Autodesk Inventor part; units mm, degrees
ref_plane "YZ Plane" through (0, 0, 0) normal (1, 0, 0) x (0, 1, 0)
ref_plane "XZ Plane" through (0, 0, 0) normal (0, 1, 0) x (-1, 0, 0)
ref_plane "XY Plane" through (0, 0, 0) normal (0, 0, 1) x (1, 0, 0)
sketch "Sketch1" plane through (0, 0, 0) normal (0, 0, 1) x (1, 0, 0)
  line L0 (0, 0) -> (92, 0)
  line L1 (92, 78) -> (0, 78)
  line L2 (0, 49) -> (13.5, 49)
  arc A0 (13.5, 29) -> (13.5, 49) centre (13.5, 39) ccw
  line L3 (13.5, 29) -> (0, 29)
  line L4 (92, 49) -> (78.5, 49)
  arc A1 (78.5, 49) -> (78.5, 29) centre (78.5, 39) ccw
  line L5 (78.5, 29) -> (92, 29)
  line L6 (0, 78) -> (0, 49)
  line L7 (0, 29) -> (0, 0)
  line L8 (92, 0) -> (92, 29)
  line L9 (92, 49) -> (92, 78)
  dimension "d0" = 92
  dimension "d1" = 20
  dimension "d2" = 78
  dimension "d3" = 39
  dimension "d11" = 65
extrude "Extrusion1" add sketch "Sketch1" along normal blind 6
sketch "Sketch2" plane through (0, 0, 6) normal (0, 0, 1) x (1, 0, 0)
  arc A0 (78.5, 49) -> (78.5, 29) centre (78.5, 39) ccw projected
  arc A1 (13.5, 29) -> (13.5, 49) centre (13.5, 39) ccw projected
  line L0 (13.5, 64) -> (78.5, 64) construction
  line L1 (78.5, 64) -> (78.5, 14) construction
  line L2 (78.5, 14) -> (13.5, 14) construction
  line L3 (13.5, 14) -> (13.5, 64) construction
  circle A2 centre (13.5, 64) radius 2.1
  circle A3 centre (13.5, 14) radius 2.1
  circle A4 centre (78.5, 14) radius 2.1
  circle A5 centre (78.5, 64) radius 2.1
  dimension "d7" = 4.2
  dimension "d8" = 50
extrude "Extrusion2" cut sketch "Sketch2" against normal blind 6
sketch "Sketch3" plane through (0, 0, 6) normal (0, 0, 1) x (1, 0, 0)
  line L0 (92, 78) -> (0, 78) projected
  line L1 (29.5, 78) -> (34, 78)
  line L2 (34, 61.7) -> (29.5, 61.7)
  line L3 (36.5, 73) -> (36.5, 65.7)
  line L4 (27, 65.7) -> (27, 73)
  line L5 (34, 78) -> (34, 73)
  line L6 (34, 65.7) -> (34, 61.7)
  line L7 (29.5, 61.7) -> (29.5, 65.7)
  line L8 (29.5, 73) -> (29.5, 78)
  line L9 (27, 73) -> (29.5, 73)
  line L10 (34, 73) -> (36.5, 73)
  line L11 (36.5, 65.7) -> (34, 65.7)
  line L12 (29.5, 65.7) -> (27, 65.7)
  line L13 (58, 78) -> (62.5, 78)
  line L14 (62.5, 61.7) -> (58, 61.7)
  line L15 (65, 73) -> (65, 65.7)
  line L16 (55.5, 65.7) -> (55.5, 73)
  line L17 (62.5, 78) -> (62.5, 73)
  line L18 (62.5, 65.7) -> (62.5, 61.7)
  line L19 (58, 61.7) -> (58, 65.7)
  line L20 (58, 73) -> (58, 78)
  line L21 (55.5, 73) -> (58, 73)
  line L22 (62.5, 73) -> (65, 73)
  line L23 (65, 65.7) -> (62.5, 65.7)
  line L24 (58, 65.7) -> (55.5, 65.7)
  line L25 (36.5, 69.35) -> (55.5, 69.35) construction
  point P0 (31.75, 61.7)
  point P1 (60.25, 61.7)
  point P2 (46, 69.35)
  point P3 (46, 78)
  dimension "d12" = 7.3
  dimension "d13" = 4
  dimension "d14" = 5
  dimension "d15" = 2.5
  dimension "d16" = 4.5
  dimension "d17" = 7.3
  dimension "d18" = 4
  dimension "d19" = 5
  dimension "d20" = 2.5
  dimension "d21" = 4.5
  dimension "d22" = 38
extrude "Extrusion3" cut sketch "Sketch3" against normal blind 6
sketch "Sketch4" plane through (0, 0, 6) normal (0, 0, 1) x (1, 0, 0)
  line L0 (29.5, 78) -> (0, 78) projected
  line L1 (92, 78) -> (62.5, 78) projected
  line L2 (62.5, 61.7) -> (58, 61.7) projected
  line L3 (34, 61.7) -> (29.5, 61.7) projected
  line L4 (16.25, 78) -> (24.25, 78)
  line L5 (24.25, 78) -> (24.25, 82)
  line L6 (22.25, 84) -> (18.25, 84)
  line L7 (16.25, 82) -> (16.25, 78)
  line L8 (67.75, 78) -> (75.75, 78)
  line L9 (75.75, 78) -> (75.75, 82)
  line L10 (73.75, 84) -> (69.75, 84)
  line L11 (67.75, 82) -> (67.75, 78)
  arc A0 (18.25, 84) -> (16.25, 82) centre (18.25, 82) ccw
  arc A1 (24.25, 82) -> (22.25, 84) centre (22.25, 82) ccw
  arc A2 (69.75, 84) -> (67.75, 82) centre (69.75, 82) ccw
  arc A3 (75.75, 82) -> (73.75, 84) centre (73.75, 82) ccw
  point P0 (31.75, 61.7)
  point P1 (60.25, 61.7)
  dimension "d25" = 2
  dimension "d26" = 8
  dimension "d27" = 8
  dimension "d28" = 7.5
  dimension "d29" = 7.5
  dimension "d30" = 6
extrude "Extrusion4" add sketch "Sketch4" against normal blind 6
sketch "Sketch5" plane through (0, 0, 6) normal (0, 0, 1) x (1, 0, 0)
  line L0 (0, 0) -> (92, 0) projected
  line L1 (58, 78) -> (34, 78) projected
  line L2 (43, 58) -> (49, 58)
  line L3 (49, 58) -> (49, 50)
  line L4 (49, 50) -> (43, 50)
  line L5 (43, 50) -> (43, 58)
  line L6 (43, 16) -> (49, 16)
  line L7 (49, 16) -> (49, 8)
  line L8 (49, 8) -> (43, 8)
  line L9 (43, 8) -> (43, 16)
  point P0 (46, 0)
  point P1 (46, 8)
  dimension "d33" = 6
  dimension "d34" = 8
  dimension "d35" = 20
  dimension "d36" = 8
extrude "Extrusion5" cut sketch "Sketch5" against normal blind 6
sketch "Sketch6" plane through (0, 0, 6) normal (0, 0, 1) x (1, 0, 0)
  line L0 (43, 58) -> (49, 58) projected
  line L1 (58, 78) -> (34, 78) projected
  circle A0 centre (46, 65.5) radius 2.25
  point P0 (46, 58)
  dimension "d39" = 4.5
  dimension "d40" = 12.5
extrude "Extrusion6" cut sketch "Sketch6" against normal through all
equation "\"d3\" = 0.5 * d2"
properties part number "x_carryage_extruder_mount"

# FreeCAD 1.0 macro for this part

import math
import FreeCAD as App
import Part
import Sketcher

V = App.Vector
Q = App.Units.Quantity


def add_polygon(sketch, points):
    """Adds a closed chain of lines whose ends are joined by coincident constraints."""
    first, n = sketch.GeometryCount, len(points)
    for a, b in zip(points, points[1:] + points[:1]):
        sketch.addGeometry(Part.LineSegment(App.Vector(*a, 0), App.Vector(*b, 0)), False)
    for i in range(n):
        sketch.addConstraint(Sketcher.Constraint("Coincident", first + i, 2, first + (i + 1) % n, 1))

doc = App.newDocument("Part")
body = doc.addObject("PartDesign::Body", "Body")

# Sketch on XY plane
sketch1 = body.newObject("Sketcher::SketchObject", "Sketch")
sketch1.AttachmentSupport = (doc.getObject("XY_Plane"), [""])
sketch1.MapMode = "FlatFace"
sketch1.addGeometry([
    Part.LineSegment(V(0, 29, 0), V(0, 0, 0)),  # 0
    Part.LineSegment(V(0, 0, 0), V(92, 0, 0)),  # 1
    Part.LineSegment(V(92, 0, 0), V(92, 29, 0)),  # 2
    Part.LineSegment(V(92, 29, 0), V(78, 29, 0)),  # 3
    Part.ArcOfCircle(Part.Circle(V(78, 39, 0), V(0, 0, 1), 10), math.radians(90), math.radians(270)),  # 4
    Part.LineSegment(V(78, 49, 0), V(92, 49, 0)),  # 5
    Part.LineSegment(V(92, 49, 0), V(92, 78, 0)),  # 6
    Part.LineSegment(V(92, 78, 0), V(0, 78, 0)),  # 7
    Part.LineSegment(V(0, 78, 0), V(0, 49, 0)),  # 8
    Part.LineSegment(V(0, 49, 0), V(14, 49, 0)),  # 9
    Part.ArcOfCircle(Part.Circle(V(14, 39, 0), V(0, 0, 1), 10), math.radians(-90), math.radians(90)),  # 10
    Part.LineSegment(V(14, 29, 0), V(0, 29, 0)),  # 11
], False)
sketch1.addConstraint([
    Sketcher.Constraint("Coincident", 0, 2, 1, 1),
    Sketcher.Constraint("Coincident", 1, 2, 2, 1),
    Sketcher.Constraint("Coincident", 2, 2, 3, 1),
    Sketcher.Constraint("Tangent", 3, 2, 4, 2),
    Sketcher.Constraint("Tangent", 4, 1, 5, 1),
    Sketcher.Constraint("Coincident", 5, 2, 6, 1),
    Sketcher.Constraint("Coincident", 6, 2, 7, 1),
    Sketcher.Constraint("Coincident", 7, 2, 8, 1),
    Sketcher.Constraint("Coincident", 8, 2, 9, 1),
    Sketcher.Constraint("Tangent", 9, 2, 10, 2),
    Sketcher.Constraint("Tangent", 10, 1, 11, 1),
    Sketcher.Constraint("Coincident", 11, 2, 0, 1),
    Sketcher.Constraint("Vertical", 0),
    Sketcher.Constraint("Horizontal", 1),
    Sketcher.Constraint("Vertical", 2),
    Sketcher.Constraint("Horizontal", 3),
    Sketcher.Constraint("Horizontal", 5),
    Sketcher.Constraint("Vertical", 6),
    Sketcher.Constraint("Horizontal", 7),
    Sketcher.Constraint("Vertical", 8),
    Sketcher.Constraint("Horizontal", 9),
    Sketcher.Constraint("Horizontal", 11),
    Sketcher.Constraint("Coincident", 0, 2, -1, 1),
    Sketcher.Constraint("Equal", 4, 10),
    Sketcher.Constraint("PointOnObject", 7, 2, -2),
    Sketcher.Constraint("Horizontal", 4, 3, 10, 3),
    Sketcher.Constraint("Vertical", 2, 2, 5, 2),
    Sketcher.Constraint("Equal", 5, 9),
    Sketcher.Constraint("Equal", 2, 6),
    Sketcher.Constraint("Radius", 4, Q("10 mm")),
    Sketcher.Constraint("DistanceX", 1, 1, 1, 2, Q("92 mm")),
    Sketcher.Constraint("DistanceY", -1, 1, 4, 3, Q("39 mm")),
    Sketcher.Constraint("DistanceX", 10, 3, 4, 3, Q("65 mm")),
])
pad1 = body.newObject("PartDesign::Pad", "Pad")
pad1.Profile = sketch1
pad1.Length = 6

# Sketch on XY plane
sketch2 = body.newObject("Sketcher::SketchObject", "Sketch001")
sketch2.AttachmentSupport = (doc.getObject("XY_Plane"), [""])
sketch2.MapMode = "FlatFace"
sketch2.AttachmentOffset = App.Placement(V(0, 0, 6), App.Rotation())
sketch2.addGeometry([
    Part.Circle(V(13.5, 64, 0), V(0, 0, 1), 2.1),
    Part.Circle(V(13.5, 14, 0), V(0, 0, 1), 2.1),
    Part.Circle(V(78.5, 14, 0), V(0, 0, 1), 2.1),
    Part.Circle(V(78.5, 64, 0), V(0, 0, 1), 2.1),
], False)
sketch2.addConstraint([
    Sketcher.Constraint("Equal", 0, 1),
    Sketcher.Constraint("Equal", 1, 2),
    Sketcher.Constraint("Equal", 2, 3),
    Sketcher.Constraint("Horizontal", 1, 3, 2, 3),
    Sketcher.Constraint("Horizontal", 0, 3, 3, 3),
    Sketcher.Constraint("Vertical", 0, 3, 1, 3),
    Sketcher.Constraint("Vertical", 2, 3, 3, 3),
    Sketcher.Constraint("Diameter", 0, Q("4.2 mm")),
    Sketcher.Constraint("DistanceY", 1, 3, 0, 3, Q("50 mm")),
    Sketcher.Constraint("DistanceY", -1, 1, 0, 3, Q("64 mm")),
    Sketcher.Constraint("DistanceX", 1, 3, 2, 3, Q("65 mm")),
    Sketcher.Constraint("DistanceX", -1, 1, 0, 3, Q("13.5 mm")),
])
pocket1 = body.newObject("PartDesign::Pocket", "Pocket")
pocket1.Profile = sketch2
pocket1.Length = 6

# Sketch on XY plane
sketch3 = body.newObject("Sketcher::SketchObject", "Sketch002")
sketch3.AttachmentSupport = (doc.getObject("XY_Plane"), [""])
sketch3.MapMode = "FlatFace"
sketch3.AttachmentOffset = App.Placement(V(0, 0, 6), App.Rotation())
add_polygon(sketch3, [(62.5, 73), (62.5, 78), (58, 78), (58, 73), (55.5, 73), (55.5, 65.7), (58, 65.7), (58, 61.7), (62.5, 61.7), (62.5, 65.7), (65, 65.7), (65, 73)])  # lines 0-11
add_polygon(sketch3, [(34, 73), (34, 78), (29.5, 78), (29.5, 73), (27, 73), (27, 65.7), (29.5, 65.7), (29.5, 61.7), (34, 61.7), (34, 65.7), (36.5, 65.7), (36.5, 73)])  # lines 12-23
sketch3.addConstraint([
    Sketcher.Constraint("Vertical", 0),
    Sketcher.Constraint("Horizontal", 1),
    Sketcher.Constraint("Vertical", 2),
    Sketcher.Constraint("Horizontal", 3),
    Sketcher.Constraint("Vertical", 4),
    Sketcher.Constraint("Horizontal", 5),
    Sketcher.Constraint("Vertical", 6),
    Sketcher.Constraint("Horizontal", 7),
    Sketcher.Constraint("Vertical", 8),
    Sketcher.Constraint("Horizontal", 9),
    Sketcher.Constraint("Vertical", 10),
    Sketcher.Constraint("Horizontal", 11),
    Sketcher.Constraint("Vertical", 12),
    Sketcher.Constraint("Horizontal", 13),
    Sketcher.Constraint("Vertical", 14),
    Sketcher.Constraint("Horizontal", 15),
    Sketcher.Constraint("Vertical", 16),
    Sketcher.Constraint("Horizontal", 17),
    Sketcher.Constraint("Vertical", 18),
    Sketcher.Constraint("Horizontal", 19),
    Sketcher.Constraint("Vertical", 20),
    Sketcher.Constraint("Horizontal", 21),
    Sketcher.Constraint("Vertical", 22),
    Sketcher.Constraint("Horizontal", 23),
    Sketcher.Constraint("Horizontal", 5, 2, 8, 2),
    Sketcher.Constraint("Horizontal", 3, 2, 10, 2),
    Sketcher.Constraint("Horizontal", 1, 2, 12, 2),
    Sketcher.Constraint("Horizontal", 11, 2, 14, 2),
    Sketcher.Constraint("Horizontal", 9, 2, 16, 2),
    Sketcher.Constraint("Horizontal", 7, 2, 18, 2),
    Sketcher.Constraint("Horizontal", 17, 2, 20, 2),
    Sketcher.Constraint("Horizontal", 15, 2, 22, 2),
    Sketcher.Constraint("Vertical", 2, 2, 5, 2),
    Sketcher.Constraint("Vertical", 0, 2, 7, 2),
    Sketcher.Constraint("Vertical", 14, 2, 17, 2),
    Sketcher.Constraint("Vertical", 12, 2, 19, 2),
    Sketcher.Constraint("Equal", 5, 9),
    Sketcher.Constraint("Equal", 7, 13),
    Sketcher.Constraint("Equal", 11, 15),
    Sketcher.Constraint("Equal", 17, 21),
    Sketcher.Constraint("DistanceY", 0, 1, 0, 2, Q("5 mm")),
    Sketcher.Constraint("DistanceY", 6, 2, 6, 1, Q("4 mm")),
    Sketcher.Constraint("DistanceX", 1, 2, 1, 1, Q("4.5 mm")),
    Sketcher.Constraint("DistanceX", 3, 2, 3, 1, Q("2.5 mm")),
    Sketcher.Constraint("DistanceY", 4, 2, 4, 1, Q("7.3 mm")),
    Sketcher.Constraint("DistanceY", -1, 1, 0, 2, Q("78 mm")),
    Sketcher.Constraint("DistanceX", -1, 1, 1, 2, Q("58 mm")),
    Sketcher.Constraint("DistanceX", -1, 1, 12, 2, Q("34 mm")),
])
pocket2 = body.newObject("PartDesign::Pocket", "Pocket001")
pocket2.Profile = sketch3
pocket2.Length = 6

# Sketch on XY plane
sketch4 = body.newObject("Sketcher::SketchObject", "Sketch003")
sketch4.AttachmentSupport = (doc.getObject("XY_Plane"), [""])
sketch4.MapMode = "FlatFace"
sketch4.AttachmentOffset = App.Placement(V(0, 0, 6), App.Rotation())
sketch4.addGeometry([
    Part.LineSegment(V(16.2, 78, 0), V(24.2, 78, 0)),  # 0
    Part.LineSegment(V(24.2, 78, 0), V(24.2, 82, 0)),  # 1
    Part.ArcOfCircle(Part.Circle(V(22.2, 82, 0), V(0, 0, 1), 2), math.radians(0), math.radians(90)),  # 2
    Part.LineSegment(V(22.2, 84, 0), V(18.2, 84, 0)),  # 3
    Part.ArcOfCircle(Part.Circle(V(18.2, 82, 0), V(0, 0, 1), 2), math.radians(90), math.radians(180)),  # 4
    Part.LineSegment(V(16.2, 82, 0), V(16.2, 78, 0)),  # 5
    Part.LineSegment(V(67.8, 78, 0), V(75.8, 78, 0)),  # 6
    Part.LineSegment(V(75.8, 78, 0), V(75.8, 82, 0)),  # 7
    Part.ArcOfCircle(Part.Circle(V(73.8, 82, 0), V(0, 0, 1), 2), math.radians(0), math.radians(90)),  # 8
    Part.LineSegment(V(73.8, 84, 0), V(69.8, 84, 0)),  # 9
    Part.ArcOfCircle(Part.Circle(V(69.8, 82, 0), V(0, 0, 1), 2), math.radians(90), math.radians(180)),  # 10
    Part.LineSegment(V(67.8, 82, 0), V(67.8, 78, 0)),  # 11
], False)
sketch4.addConstraint([
    Sketcher.Constraint("Coincident", 0, 2, 1, 1),
    Sketcher.Constraint("Tangent", 1, 2, 2, 1),
    Sketcher.Constraint("Tangent", 2, 2, 3, 1),
    Sketcher.Constraint("Tangent", 3, 2, 4, 1),
    Sketcher.Constraint("Tangent", 4, 2, 5, 1),
    Sketcher.Constraint("Coincident", 5, 2, 0, 1),
    Sketcher.Constraint("Coincident", 6, 2, 7, 1),
    Sketcher.Constraint("Tangent", 7, 2, 8, 1),
    Sketcher.Constraint("Tangent", 8, 2, 9, 1),
    Sketcher.Constraint("Tangent", 9, 2, 10, 1),
    Sketcher.Constraint("Tangent", 10, 2, 11, 1),
    Sketcher.Constraint("Coincident", 11, 2, 6, 1),
    Sketcher.Constraint("Horizontal", 0),
    Sketcher.Constraint("Vertical", 1),
    Sketcher.Constraint("Horizontal", 3),
    Sketcher.Constraint("Vertical", 5),
    Sketcher.Constraint("Horizontal", 6),
    Sketcher.Constraint("Vertical", 7),
    Sketcher.Constraint("Horizontal", 9),
    Sketcher.Constraint("Vertical", 11),
    Sketcher.Constraint("Equal", 2, 4),
    Sketcher.Constraint("Equal", 4, 8),
    Sketcher.Constraint("Equal", 8, 10),
    Sketcher.Constraint("Horizontal", 4, 3, 8, 3),
    Sketcher.Constraint("Horizontal", 5, 2, 6, 2),
    Sketcher.Constraint("Equal", 0, 6),
    Sketcher.Constraint("Equal", 9, 1),
    Sketcher.Constraint("Radius", 2, Q("2 mm")),
    Sketcher.Constraint("DistanceX", 0, 1, 0, 2, Q("8 mm")),
    Sketcher.Constraint("DistanceY", -1, 1, 2, 3, Q("82 mm")),
    Sketcher.Constraint("DistanceX", 2, 3, 8, 3, Q("51.5 mm")),
    Sketcher.Constraint("DistanceX", -1, 1, 2, 3, Q("22.25 mm")),
])
pad2 = body.newObject("PartDesign::Pad", "Pad001")
pad2.Profile = sketch4
pad2.Length = 6
pad2.Reversed = True

# Sketch on XY plane
sketch5 = body.newObject("Sketcher::SketchObject", "Sketch004")
sketch5.AttachmentSupport = (doc.getObject("XY_Plane"), [""])
sketch5.MapMode = "FlatFace"
sketch5.AttachmentOffset = App.Placement(V(0, 0, 6), App.Rotation())
add_polygon(sketch5, [(49, 58), (43, 58), (43, 50), (49, 50)])  # lines 0-3
add_polygon(sketch5, [(49, 16), (43, 16), (43, 8), (49, 8)])  # lines 4-7
sketch5.addConstraint([
    Sketcher.Constraint("Horizontal", 0),
    Sketcher.Constraint("Vertical", 1),
    Sketcher.Constraint("Horizontal", 2),
    Sketcher.Constraint("Vertical", 3),
    Sketcher.Constraint("Horizontal", 4),
    Sketcher.Constraint("Vertical", 5),
    Sketcher.Constraint("Horizontal", 6),
    Sketcher.Constraint("Vertical", 7),
    Sketcher.Constraint("Vertical", 1, 2, 4, 2),
    Sketcher.Constraint("Vertical", 3, 2, 6, 2),
    Sketcher.Constraint("Equal", 3, 5),
    Sketcher.Constraint("DistanceX", 0, 2, 0, 1, Q("6 mm")),
    Sketcher.Constraint("DistanceY", 1, 2, 1, 1, Q("8 mm")),
    Sketcher.Constraint("DistanceY", -1, 1, 5, 2, Q("8 mm")),
    Sketcher.Constraint("DistanceX", -1, 1, 0, 2, Q("43 mm")),
    Sketcher.Constraint("DistanceY", -1, 1, 0, 2, Q("58 mm")),
])
pocket3 = body.newObject("PartDesign::Pocket", "Pocket002")
pocket3.Profile = sketch5
pocket3.Length = 6

# Sketch on XY plane
sketch6 = body.newObject("Sketcher::SketchObject", "Sketch005")
sketch6.AttachmentSupport = (doc.getObject("XY_Plane"), [""])
sketch6.MapMode = "FlatFace"
sketch6.AttachmentOffset = App.Placement(V(0, 0, 6), App.Rotation())
sketch6.addGeometry(Part.Circle(V(46, 65.5, 0), V(0, 0, 1), 2.2), False)
sketch6.addConstraint([
    Sketcher.Constraint("Diameter", 0, Q("4.5 mm")),
    Sketcher.Constraint("DistanceX", -1, 1, 0, 3, Q("46 mm")),
    Sketcher.Constraint("DistanceY", -1, 1, 0, 3, Q("65.5 mm")),
])
pocket4 = body.newObject("PartDesign::Pocket", "Pocket003")
pocket4.Profile = sketch6
pocket4.Type = "ThroughAll"

doc.recompute()
